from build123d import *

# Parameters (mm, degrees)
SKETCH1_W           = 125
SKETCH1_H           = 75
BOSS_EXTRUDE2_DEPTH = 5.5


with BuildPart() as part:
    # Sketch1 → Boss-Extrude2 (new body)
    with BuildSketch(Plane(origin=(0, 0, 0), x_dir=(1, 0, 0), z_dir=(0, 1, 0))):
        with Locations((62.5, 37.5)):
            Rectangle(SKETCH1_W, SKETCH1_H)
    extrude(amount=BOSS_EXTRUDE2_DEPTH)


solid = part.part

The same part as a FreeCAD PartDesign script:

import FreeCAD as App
import Part
import Sketcher

doc = App.newDocument("Part")
body = doc.addObject("PartDesign::Body", "Body")

sketch1 = doc.addObject("Sketcher::SketchObject", "Sketch")
body.addObject(sketch1)
sketch1.AttachmentSupport = (doc.XZ_Plane, [""])
sketch1.MapMode = "FlatFace"
sketch1.addGeometry(Part.LineSegment(App.Vector(0, -75, 0), App.Vector(0, 0, 0)), False)
sketch1.addGeometry(Part.LineSegment(App.Vector(0, 0, 0), App.Vector(125, 0, 0)), False)
sketch1.addGeometry(Part.LineSegment(App.Vector(125, 0, 0), App.Vector(125, -75, 0)), False)
sketch1.addGeometry(Part.LineSegment(App.Vector(125, -75, 0), App.Vector(0, -75, 0)), False)
sketch1.addConstraint(Sketcher.Constraint("Coincident", 0, 2, 1, 1))
sketch1.addConstraint(Sketcher.Constraint("Coincident", 1, 2, 2, 1))
sketch1.addConstraint(Sketcher.Constraint("Coincident", 2, 2, 3, 1))
sketch1.addConstraint(Sketcher.Constraint("Coincident", 3, 2, 0, 1))
sketch1.addConstraint(Sketcher.Constraint("Vertical", 0))
sketch1.addConstraint(Sketcher.Constraint("Horizontal", 1))
sketch1.addConstraint(Sketcher.Constraint("Vertical", 2))
sketch1.addConstraint(Sketcher.Constraint("Horizontal", 3))
sketch1.addConstraint(Sketcher.Constraint("Coincident", 0, 2, -1, 1))
sketch1.addConstraint(Sketcher.Constraint("DistanceX", 1, 1, 1, 2, 125.0))
sketch1.addConstraint(Sketcher.Constraint("DistanceY", 0, 1, 0, 2, 75.0))
pad1 = doc.addObject("PartDesign::Pad", "Pad")
body.addObject(pad1)
pad1.Profile = sketch1
pad1.Length = 5.5
pad1.Reversed = True

doc.recompute()
